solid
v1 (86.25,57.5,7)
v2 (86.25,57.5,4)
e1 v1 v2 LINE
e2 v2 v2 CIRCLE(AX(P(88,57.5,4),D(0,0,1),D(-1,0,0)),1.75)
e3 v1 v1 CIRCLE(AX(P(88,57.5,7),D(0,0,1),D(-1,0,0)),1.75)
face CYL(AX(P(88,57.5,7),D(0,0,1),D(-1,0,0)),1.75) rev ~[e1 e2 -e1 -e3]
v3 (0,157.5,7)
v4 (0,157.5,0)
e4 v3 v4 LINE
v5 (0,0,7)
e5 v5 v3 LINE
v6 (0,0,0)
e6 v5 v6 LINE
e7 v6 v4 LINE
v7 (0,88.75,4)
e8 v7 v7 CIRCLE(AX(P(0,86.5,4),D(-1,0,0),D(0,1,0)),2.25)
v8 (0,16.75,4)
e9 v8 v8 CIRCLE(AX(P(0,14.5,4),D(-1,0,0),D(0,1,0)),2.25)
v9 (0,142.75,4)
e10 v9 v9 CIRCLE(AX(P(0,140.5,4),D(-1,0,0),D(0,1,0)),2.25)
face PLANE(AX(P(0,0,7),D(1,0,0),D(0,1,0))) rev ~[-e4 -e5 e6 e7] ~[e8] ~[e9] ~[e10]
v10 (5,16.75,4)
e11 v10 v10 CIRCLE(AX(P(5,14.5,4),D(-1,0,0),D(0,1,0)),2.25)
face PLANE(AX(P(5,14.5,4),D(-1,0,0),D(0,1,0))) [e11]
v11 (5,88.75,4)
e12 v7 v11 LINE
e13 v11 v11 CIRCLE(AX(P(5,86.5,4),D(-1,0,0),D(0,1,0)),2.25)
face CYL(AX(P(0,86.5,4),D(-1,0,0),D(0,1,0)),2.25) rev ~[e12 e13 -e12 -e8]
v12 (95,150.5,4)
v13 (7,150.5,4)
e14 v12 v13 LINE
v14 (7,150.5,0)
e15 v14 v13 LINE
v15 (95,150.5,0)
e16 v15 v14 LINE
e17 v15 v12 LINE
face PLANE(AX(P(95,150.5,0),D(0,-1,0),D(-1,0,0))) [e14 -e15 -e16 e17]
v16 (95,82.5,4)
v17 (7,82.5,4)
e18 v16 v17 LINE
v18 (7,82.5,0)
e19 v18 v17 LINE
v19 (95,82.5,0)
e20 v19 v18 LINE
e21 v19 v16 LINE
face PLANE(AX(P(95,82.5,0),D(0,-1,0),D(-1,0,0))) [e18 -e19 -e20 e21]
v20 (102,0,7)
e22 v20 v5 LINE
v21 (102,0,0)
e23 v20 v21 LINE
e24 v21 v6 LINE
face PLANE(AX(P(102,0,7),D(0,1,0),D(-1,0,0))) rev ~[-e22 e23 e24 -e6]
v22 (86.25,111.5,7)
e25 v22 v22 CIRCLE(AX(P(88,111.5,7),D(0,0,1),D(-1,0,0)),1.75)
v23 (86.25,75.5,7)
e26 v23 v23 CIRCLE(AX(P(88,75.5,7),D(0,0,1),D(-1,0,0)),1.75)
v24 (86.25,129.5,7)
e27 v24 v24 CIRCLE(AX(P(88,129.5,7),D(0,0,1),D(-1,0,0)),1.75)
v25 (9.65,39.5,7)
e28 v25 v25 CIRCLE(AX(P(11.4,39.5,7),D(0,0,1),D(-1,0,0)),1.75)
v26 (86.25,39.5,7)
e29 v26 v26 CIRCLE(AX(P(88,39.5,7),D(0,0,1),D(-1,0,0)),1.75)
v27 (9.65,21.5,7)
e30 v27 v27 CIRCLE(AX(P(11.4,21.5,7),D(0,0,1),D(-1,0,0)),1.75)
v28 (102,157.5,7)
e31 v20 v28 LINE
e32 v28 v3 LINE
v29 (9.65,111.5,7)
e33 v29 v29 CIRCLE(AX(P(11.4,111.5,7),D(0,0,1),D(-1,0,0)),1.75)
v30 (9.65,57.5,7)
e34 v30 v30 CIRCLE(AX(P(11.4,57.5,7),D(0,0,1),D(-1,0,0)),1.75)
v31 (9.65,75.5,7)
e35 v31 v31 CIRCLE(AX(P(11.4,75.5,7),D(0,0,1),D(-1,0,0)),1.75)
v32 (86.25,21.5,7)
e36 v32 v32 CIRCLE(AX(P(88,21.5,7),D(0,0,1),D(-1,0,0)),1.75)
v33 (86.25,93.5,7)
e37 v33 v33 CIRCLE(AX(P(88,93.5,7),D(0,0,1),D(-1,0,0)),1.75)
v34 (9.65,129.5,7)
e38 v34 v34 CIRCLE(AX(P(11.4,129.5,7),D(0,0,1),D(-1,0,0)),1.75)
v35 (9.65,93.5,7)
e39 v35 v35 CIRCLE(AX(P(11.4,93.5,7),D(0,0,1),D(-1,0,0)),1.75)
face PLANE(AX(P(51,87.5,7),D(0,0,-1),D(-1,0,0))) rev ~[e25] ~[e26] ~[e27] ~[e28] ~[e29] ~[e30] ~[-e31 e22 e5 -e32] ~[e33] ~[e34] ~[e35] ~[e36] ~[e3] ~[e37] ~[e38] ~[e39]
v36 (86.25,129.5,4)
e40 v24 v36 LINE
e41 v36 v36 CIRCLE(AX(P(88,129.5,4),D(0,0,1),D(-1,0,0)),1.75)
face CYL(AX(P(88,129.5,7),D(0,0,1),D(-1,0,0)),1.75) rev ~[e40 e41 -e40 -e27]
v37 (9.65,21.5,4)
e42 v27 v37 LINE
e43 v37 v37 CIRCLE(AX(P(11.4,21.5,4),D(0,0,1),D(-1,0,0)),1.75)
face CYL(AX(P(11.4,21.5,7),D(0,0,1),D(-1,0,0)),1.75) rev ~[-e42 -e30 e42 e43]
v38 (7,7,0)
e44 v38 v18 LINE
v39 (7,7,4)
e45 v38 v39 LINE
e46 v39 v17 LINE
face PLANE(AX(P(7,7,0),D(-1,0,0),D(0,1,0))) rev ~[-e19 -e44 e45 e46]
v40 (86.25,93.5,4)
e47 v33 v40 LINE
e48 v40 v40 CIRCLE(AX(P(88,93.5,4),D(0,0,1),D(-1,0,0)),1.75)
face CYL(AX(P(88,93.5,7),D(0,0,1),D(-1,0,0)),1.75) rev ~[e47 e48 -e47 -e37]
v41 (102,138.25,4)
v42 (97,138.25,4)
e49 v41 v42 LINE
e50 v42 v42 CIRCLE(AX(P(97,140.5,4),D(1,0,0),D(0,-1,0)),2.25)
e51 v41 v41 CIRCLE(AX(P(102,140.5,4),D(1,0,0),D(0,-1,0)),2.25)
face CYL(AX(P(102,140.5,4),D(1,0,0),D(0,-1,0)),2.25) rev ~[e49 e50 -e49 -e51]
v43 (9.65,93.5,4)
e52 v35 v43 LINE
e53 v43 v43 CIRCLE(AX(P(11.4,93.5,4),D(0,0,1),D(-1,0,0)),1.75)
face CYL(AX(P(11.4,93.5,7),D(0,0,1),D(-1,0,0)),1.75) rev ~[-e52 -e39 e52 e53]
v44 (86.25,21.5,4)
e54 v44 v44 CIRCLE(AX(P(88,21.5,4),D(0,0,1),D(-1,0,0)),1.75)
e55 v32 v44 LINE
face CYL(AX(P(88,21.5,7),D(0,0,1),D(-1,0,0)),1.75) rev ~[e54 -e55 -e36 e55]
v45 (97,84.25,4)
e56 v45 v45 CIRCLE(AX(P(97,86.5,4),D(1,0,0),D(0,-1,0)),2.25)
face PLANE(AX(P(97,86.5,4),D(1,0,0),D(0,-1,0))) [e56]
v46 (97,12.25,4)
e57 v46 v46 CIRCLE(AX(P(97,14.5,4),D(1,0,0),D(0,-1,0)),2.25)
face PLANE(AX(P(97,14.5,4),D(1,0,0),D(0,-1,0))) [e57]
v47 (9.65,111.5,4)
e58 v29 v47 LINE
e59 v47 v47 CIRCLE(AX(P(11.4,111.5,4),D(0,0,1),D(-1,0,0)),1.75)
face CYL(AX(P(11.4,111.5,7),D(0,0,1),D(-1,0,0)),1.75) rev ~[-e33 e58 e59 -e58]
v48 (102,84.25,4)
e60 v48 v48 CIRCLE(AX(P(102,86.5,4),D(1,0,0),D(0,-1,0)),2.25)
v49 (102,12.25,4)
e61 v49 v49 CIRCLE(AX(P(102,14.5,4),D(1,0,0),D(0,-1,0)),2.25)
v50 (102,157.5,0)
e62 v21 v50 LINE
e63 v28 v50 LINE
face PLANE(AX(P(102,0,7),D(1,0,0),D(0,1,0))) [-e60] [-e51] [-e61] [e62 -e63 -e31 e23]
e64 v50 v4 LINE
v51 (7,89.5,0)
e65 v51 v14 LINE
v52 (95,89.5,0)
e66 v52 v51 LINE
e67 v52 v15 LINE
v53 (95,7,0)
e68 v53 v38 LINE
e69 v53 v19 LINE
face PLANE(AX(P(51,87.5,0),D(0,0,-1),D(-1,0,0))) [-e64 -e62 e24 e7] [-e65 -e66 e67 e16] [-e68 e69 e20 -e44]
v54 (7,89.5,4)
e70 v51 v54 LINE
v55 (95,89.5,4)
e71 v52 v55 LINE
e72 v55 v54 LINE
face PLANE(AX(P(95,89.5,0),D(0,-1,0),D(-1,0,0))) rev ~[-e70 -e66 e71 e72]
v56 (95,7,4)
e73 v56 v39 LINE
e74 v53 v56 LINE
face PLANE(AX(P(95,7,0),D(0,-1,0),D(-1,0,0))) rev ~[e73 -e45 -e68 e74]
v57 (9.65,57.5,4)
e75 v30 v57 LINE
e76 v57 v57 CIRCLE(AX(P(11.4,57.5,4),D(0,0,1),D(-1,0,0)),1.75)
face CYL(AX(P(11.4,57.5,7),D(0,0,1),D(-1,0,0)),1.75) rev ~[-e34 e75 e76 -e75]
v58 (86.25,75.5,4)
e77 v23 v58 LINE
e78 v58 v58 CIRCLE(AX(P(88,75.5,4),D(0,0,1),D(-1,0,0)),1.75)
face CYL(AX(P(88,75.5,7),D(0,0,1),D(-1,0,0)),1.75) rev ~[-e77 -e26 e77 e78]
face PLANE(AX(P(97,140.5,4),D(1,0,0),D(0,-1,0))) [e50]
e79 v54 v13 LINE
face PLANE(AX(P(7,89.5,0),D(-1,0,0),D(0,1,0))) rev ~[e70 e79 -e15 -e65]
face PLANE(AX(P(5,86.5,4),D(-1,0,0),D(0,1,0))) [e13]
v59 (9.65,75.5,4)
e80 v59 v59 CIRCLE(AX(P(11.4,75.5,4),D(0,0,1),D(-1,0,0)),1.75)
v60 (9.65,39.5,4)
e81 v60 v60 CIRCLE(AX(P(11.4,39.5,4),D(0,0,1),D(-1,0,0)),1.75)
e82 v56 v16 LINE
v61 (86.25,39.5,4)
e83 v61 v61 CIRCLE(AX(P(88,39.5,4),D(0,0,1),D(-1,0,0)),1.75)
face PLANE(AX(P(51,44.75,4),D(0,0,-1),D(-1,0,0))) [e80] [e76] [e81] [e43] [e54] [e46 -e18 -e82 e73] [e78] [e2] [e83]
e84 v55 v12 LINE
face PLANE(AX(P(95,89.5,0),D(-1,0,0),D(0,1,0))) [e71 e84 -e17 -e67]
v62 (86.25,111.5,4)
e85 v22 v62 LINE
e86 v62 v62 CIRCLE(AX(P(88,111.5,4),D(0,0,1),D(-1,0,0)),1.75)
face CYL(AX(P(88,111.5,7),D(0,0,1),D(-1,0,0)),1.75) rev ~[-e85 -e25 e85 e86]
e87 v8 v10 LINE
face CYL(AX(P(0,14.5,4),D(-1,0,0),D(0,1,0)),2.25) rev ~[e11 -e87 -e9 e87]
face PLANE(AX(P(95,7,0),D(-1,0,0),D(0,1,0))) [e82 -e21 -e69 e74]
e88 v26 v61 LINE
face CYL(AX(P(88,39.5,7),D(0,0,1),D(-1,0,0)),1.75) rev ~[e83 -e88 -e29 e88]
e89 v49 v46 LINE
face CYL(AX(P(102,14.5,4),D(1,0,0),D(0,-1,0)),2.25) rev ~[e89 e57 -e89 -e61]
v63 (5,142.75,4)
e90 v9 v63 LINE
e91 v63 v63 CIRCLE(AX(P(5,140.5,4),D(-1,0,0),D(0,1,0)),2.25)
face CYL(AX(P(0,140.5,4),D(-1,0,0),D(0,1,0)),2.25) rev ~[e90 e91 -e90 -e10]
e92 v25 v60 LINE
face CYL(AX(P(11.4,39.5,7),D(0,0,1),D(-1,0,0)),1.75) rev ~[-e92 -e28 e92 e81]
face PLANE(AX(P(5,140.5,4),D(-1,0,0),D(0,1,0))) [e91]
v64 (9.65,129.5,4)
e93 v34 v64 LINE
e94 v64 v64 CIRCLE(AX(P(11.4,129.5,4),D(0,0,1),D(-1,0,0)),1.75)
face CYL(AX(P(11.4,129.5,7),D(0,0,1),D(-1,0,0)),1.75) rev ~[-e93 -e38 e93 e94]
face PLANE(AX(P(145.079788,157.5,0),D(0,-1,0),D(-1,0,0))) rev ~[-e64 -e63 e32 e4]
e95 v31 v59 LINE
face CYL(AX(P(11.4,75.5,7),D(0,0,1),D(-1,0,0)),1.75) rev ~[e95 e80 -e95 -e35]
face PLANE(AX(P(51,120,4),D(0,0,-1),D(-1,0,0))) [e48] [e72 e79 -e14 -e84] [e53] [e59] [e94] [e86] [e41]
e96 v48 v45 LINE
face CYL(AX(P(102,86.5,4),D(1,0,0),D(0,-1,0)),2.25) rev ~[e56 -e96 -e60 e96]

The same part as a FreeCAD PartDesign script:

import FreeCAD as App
import Part
import Sketcher

V = App.Vector
Q = App.Units.Quantity


def add_polygon(sketch, points):
    """Adds a closed chain of lines whose ends are joined by coincident constraints."""
    first, n = sketch.GeometryCount, len(points)
    for a, b in zip(points, points[1:] + points[:1]):
        sketch.addGeometry(Part.LineSegment(App.Vector(*a, 0), App.Vector(*b, 0)), False)
    for i in range(n):
        sketch.addConstraint(Sketcher.Constraint("Coincident", first + i, 2, first + (i + 1) % n, 1))

doc = App.newDocument("Part")
body = doc.addObject("PartDesign::Body", "Body")

# Sketch on XY plane
sketch1 = body.newObject("Sketcher::SketchObject", "Sketch")
sketch1.AttachmentSupport = (doc.getObject("XY_Plane"), [""])
sketch1.MapMode = "FlatFace"
add_polygon(sketch1, [(0, 175), (0, 0), (102, 0), (102, 175)])  # lines 0-3
sketch1.addConstraint(Sketcher.Constraint("Vertical", 0))
sketch1.addConstraint(Sketcher.Constraint("Horizontal", 1))
sketch1.addConstraint(Sketcher.Constraint("Vertical", 2))
sketch1.addConstraint(Sketcher.Constraint("Horizontal", 3))
sketch1.addConstraint(Sketcher.Constraint("Coincident", 0, 2, -1, 1))
sketch1.addConstraint(Sketcher.Constraint("DistanceX", 1, 1, 1, 2, Q("102 mm")))
sketch1.addConstraint(Sketcher.Constraint("DistanceY", 0, 2, 0, 1, Q("175 mm")))
pad1 = body.newObject("PartDesign::Pad", "Pad")
pad1.Profile = sketch1
pad1.Length = 7

# Sketch on XY plane
sketch2 = body.newObject("Sketcher::SketchObject", "Sketch001")
sketch2.AttachmentSupport = (doc.getObject("XY_Plane"), [""])
sketch2.MapMode = "FlatFace"
sketch2.addGeometry(Part.Circle(V(90.6, 129.5, 0), V(0, 0, 1), 1.75), False)
sketch2.addGeometry(Part.Circle(V(14, 129.5, 0), V(0, 0, 1), 1.75), False)
sketch2.addGeometry(Part.Circle(V(90.6, 111.5, 0), V(0, 0, 1), 1.75), False)
sketch2.addGeometry(Part.Circle(V(14, 111.5, 0), V(0, 0, 1), 1.75), False)
sketch2.addGeometry(Part.Circle(V(90.6, 93.5, 0), V(0, 0, 1), 1.75), False)
sketch2.addGeometry(Part.Circle(V(14, 93.5, 0), V(0, 0, 1), 1.75), False)
sketch2.addGeometry(Part.Circle(V(14, 75.5, 0), V(0, 0, 1), 1.75), False)
sketch2.addGeometry(Part.Circle(V(90.6, 75.5, 0), V(0, 0, 1), 1.75), False)
sketch2.addGeometry(Part.Circle(V(90.6, 57.5, 0), V(0, 0, 1), 1.75), False)
sketch2.addGeometry(Part.Circle(V(90.6, 39.5, 0), V(0, 0, 1), 1.75), False)
sketch2.addGeometry(Part.Circle(V(14, 39.5, 0), V(0, 0, 1), 1.75), False)
sketch2.addGeometry(Part.Circle(V(14, 21.5, 0), V(0, 0, 1), 1.75), False)
sketch2.addGeometry(Part.Circle(V(90.6, 21.5, 0), V(0, 0, 1), 1.75), False)
sketch2.addGeometry(Part.Circle(V(14, 57.5, 0), V(0, 0, 1), 1.75), False)
sketch2.addConstraint(Sketcher.Constraint("Equal", 0, 1))
sketch2.addConstraint(Sketcher.Constraint("Equal", 1, 2))
sketch2.addConstraint(Sketcher.Constraint("Equal", 2, 3))
sketch2.addConstraint(Sketcher.Constraint("Equal", 3, 4))
sketch2.addConstraint(Sketcher.Constraint("Equal", 4, 5))
sketch2.addConstraint(Sketcher.Constraint("Equal", 5, 6))
sketch2.addConstraint(Sketcher.Constraint("Equal", 6, 7))
sketch2.addConstraint(Sketcher.Constraint("Equal", 7, 8))
sketch2.addConstraint(Sketcher.Constraint("Equal", 8, 9))
sketch2.addConstraint(Sketcher.Constraint("Equal", 9, 10))
sketch2.addConstraint(Sketcher.Constraint("Equal", 10, 11))
sketch2.addConstraint(Sketcher.Constraint("Equal", 11, 12))
sketch2.addConstraint(Sketcher.Constraint("Equal", 12, 13))
sketch2.addConstraint(Sketcher.Constraint("Horizontal", 0, 3, 1, 3))
sketch2.addConstraint(Sketcher.Constraint("Horizontal", 2, 3, 3, 3))
sketch2.addConstraint(Sketcher.Constraint("Horizontal", 4, 3, 5, 3))
sketch2.addConstraint(Sketcher.Constraint("Horizontal", 6, 3, 7, 3))
sketch2.addConstraint(Sketcher.Constraint("Horizontal", 9, 3, 10, 3))
sketch2.addConstraint(Sketcher.Constraint("Horizontal", 11, 3, 12, 3))
sketch2.addConstraint(Sketcher.Constraint("Horizontal", 8, 3, 13, 3))
sketch2.addConstraint(Sketcher.Constraint("Vertical", 0, 3, 2, 3))
sketch2.addConstraint(Sketcher.Constraint("Vertical", 1, 3, 3, 3))
sketch2.addConstraint(Sketcher.Constraint("Vertical", 2, 3, 4, 3))
sketch2.addConstraint(Sketcher.Constraint("Vertical", 3, 3, 5, 3))
sketch2.addConstraint(Sketcher.Constraint("Vertical", 5, 3, 6, 3))
sketch2.addConstraint(Sketcher.Constraint("Vertical", 4, 3, 7, 3))
sketch2.addConstraint(Sketcher.Constraint("Vertical", 7, 3, 8, 3))
sketch2.addConstraint(Sketcher.Constraint("Vertical", 8, 3, 9, 3))
sketch2.addConstraint(Sketcher.Constraint("Vertical", 6, 3, 10, 3))
sketch2.addConstraint(Sketcher.Constraint("Vertical", 10, 3, 11, 3))
sketch2.addConstraint(Sketcher.Constraint("Vertical", 9, 3, 12, 3))
sketch2.addConstraint(Sketcher.Constraint("Vertical", 11, 3, 13, 3))
sketch2.addConstraint(Sketcher.Constraint("Diameter", 0, Q("3.5 mm")))
sketch2.addConstraint(Sketcher.Constraint("DistanceX", -1, 1, 1, 3, Q("14 mm")))
sketch2.addConstraint(Sketcher.Constraint("DistanceY", 2, 3, 0, 3, Q("18 mm")))
sketch2.addConstraint(Sketcher.Constraint("DistanceY", 4, 3, 2, 3, Q("18 mm")))
sketch2.addConstraint(Sketcher.Constraint("DistanceY", 6, 3, 5, 3, Q("18 mm")))
sketch2.addConstraint(Sketcher.Constraint("DistanceY", 8, 3, 7, 3, Q("18 mm")))
sketch2.addConstraint(Sketcher.Constraint("DistanceY", 9, 3, 8, 3, Q("18 mm")))
sketch2.addConstraint(Sketcher.Constraint("DistanceY", 11, 3, 10, 3, Q("18 mm")))
sketch2.addConstraint(Sketcher.Constraint("DistanceX", -1, 1, 0, 3, Q("90.6 mm")))
sketch2.addConstraint(Sketcher.Constraint("DistanceY", -1, 1, 0, 3, Q("129.5 mm")))
pocket1 = body.newObject("PartDesign::Pocket", "Pocket")
pocket1.Profile = sketch2
pocket1.Type = "ThroughAll"
pocket1.Reversed = True

# Sketch on YZ plane
sketch3 = body.newObject("Sketcher::SketchObject", "Sketch002")
sketch3.AttachmentSupport = (doc.getObject("YZ_Plane"), [""])
sketch3.MapMode = "FlatFace"
sketch3.addGeometry(Part.Circle(V(14.5, 3, 0), V(0, 0, 1), 2.25), False)
sketch3.addGeometry(Part.Circle(V(86.5, 3, 0), V(0, 0, 1), 2.25), False)
sketch3.addGeometry(Part.Circle(V(140.5, 3, 0), V(0, 0, 1), 2.25), False)
sketch3.addConstraint(Sketcher.Constraint("Equal", 0, 1))
sketch3.addConstraint(Sketcher.Constraint("Equal", 1, 2))
sketch3.addConstraint(Sketcher.Constraint("Horizontal", 0, 3, 1, 3))
sketch3.addConstraint(Sketcher.Constraint("Horizontal", 1, 3, 2, 3))
sketch3.addConstraint(Sketcher.Constraint("Diameter", 0, Q("4.5 mm")))
sketch3.addConstraint(Sketcher.Constraint("DistanceY", -1, 1, 0, 3, Q("3 mm")))
sketch3.addConstraint(Sketcher.Constraint("DistanceX", 0, 3, 1, 3, Q("72 mm")))
sketch3.addConstraint(Sketcher.Constraint("DistanceX", 1, 3, 2, 3, Q("54 mm")))
sketch3.addConstraint(Sketcher.Constraint("DistanceX", -1, 1, 0, 3, Q("14.5 mm")))
pocket2 = body.newObject("PartDesign::Pocket", "Pocket001")
pocket2.Profile = sketch3
pocket2.Length = 5
pocket2.Reversed = True

# Sketch on YZ plane
sketch4 = body.newObject("Sketcher::SketchObject", "Sketch003")
sketch4.AttachmentSupport = (doc.getObject("YZ_Plane"), [""])
sketch4.MapMode = "FlatFace"
sketch4.AttachmentOffset = App.Placement(V(0, 0, 102), App.Rotation())
sketch4.addGeometry(Part.Circle(V(14.5, 3, 0), V(0, 0, 1), 2.25), False)
sketch4.addGeometry(Part.Circle(V(86.5, 3, 0), V(0, 0, 1), 2.25), False)
sketch4.addGeometry(Part.Circle(V(140.5, 3, 0), V(0, 0, 1), 2.25), False)
sketch4.addConstraint(Sketcher.Constraint("Equal", 0, 1))
sketch4.addConstraint(Sketcher.Constraint("Equal", 1, 2))
sketch4.addConstraint(Sketcher.Constraint("Horizontal", 0, 3, 1, 3))
sketch4.addConstraint(Sketcher.Constraint("Horizontal", 1, 3, 2, 3))
sketch4.addConstraint(Sketcher.Constraint("Diameter", 0, Q("4.5 mm")))
sketch4.addConstraint(Sketcher.Constraint("DistanceY", -1, 1, 0, 3, Q("3 mm")))
sketch4.addConstraint(Sketcher.Constraint("DistanceX", 0, 3, 1, 3, Q("72 mm")))
sketch4.addConstraint(Sketcher.Constraint("DistanceX", 1, 3, 2, 3, Q("54 mm")))
sketch4.addConstraint(Sketcher.Constraint("DistanceX", -1, 1, 0, 3, Q("14.5 mm")))
pocket3 = body.newObject("PartDesign::Pocket", "Pocket002")
pocket3.Profile = sketch4
pocket3.Length = 5

# Sketch on XY plane
sketch5 = body.newObject("Sketcher::SketchObject", "Sketch004")
sketch5.AttachmentSupport = (doc.getObject("XY_Plane"), [""])
sketch5.MapMode = "FlatFace"
sketch5.AttachmentOffset = App.Placement(V(0, 0, 7), App.Rotation())
add_polygon(sketch5, [(7, 150.5), (7, 89.5), (95, 89.5), (95, 150.5)])  # lines 0-3
add_polygon(sketch5, [(7, 82.5), (7, 7), (95, 7), (95, 82.5)])  # lines 4-7
sketch5.addConstraint(Sketcher.Constraint("Vertical", 0))
sketch5.addConstraint(Sketcher.Constraint("Horizontal", 1))
sketch5.addConstraint(Sketcher.Constraint("Vertical", 2))
sketch5.addConstraint(Sketcher.Constraint("Horizontal", 3))
sketch5.addConstraint(Sketcher.Constraint("Vertical", 4))
sketch5.addConstraint(Sketcher.Constraint("Horizontal", 5))
sketch5.addConstraint(Sketcher.Constraint("Vertical", 6))
sketch5.addConstraint(Sketcher.Constraint("Horizontal", 7))
sketch5.addConstraint(Sketcher.Constraint("Vertical", 3, 2, 4, 2))
sketch5.addConstraint(Sketcher.Constraint("Vertical", 2, 2, 5, 2))
sketch5.addConstraint(Sketcher.Constraint("DistanceX", 1, 1, 1, 2, Q("88 mm")))
sketch5.addConstraint(Sketcher.Constraint("DistanceY", 0, 2, 0, 1, Q("61 mm")))
sketch5.addConstraint(Sketcher.Constraint("DistanceY", 4, 2, 4, 1, Q("75.5 mm")))
sketch5.addConstraint(Sketcher.Constraint("DistanceX", -1, 1, 0, 2, Q("7 mm")))
sketch5.addConstraint(Sketcher.Constraint("DistanceY", -1, 1, 4, 2, Q("7 mm")))
sketch5.addConstraint(Sketcher.Constraint("DistanceY", 6, 2, 1, 2, Q("7 mm")))
pocket4 = body.newObject("PartDesign::Pocket", "Pocket003")
pocket4.Profile = sketch5
pocket4.Length = 4

# Sketch on XY plane
sketch6 = body.newObject("Sketcher::SketchObject", "Sketch005")
sketch6.AttachmentSupport = (doc.getObject("XY_Plane"), [""])
sketch6.MapMode = "FlatFace"
sketch6.AttachmentOffset = App.Placement(V(0, 0, 7), App.Rotation())
add_polygon(sketch6, [(-43.079788, 204.948592), (-43.079788, 157.5), (143.256622, 157.5), (143.256622, 204.948592)])  # lines 0-3
sketch6.addConstraint(Sketcher.Constraint("Vertical", 0))
sketch6.addConstraint(Sketcher.Constraint("Horizontal", 1))
sketch6.addConstraint(Sketcher.Constraint("Vertical", 2))
sketch6.addConstraint(Sketcher.Constraint("Horizontal", 3))
sketch6.addConstraint(Sketcher.Constraint("DistanceY", -1, 1, 0, 2, Q("157.5 mm")))
sketch6.addConstraint(Sketcher.Constraint("DistanceX", 1, 1, 1, 2, Q("186.33641 mm")))
sketch6.addConstraint(Sketcher.Constraint("DistanceY", 0, 2, 0, 1, Q("47.448593 mm")))
sketch6.addConstraint(Sketcher.Constraint("DistanceX", -1, 1, 1, 2, Q("143.256622 mm")))
pocket5 = body.newObject("PartDesign::Pocket", "Pocket004")
pocket5.Profile = sketch6
pocket5.Type = "ThroughAll"
body2 = doc.addObject("PartDesign::Body", "Body001")
doc.recompute()

body.Placement = App.Placement(V(102, 0, 7), App.Rotation(V(0, 1, 0), 180))
boolean = body2.newObject("PartDesign::Boolean", "Boolean")
boolean.Type = "Fuse"
boolean.addObjects([body])

doc.recompute()
